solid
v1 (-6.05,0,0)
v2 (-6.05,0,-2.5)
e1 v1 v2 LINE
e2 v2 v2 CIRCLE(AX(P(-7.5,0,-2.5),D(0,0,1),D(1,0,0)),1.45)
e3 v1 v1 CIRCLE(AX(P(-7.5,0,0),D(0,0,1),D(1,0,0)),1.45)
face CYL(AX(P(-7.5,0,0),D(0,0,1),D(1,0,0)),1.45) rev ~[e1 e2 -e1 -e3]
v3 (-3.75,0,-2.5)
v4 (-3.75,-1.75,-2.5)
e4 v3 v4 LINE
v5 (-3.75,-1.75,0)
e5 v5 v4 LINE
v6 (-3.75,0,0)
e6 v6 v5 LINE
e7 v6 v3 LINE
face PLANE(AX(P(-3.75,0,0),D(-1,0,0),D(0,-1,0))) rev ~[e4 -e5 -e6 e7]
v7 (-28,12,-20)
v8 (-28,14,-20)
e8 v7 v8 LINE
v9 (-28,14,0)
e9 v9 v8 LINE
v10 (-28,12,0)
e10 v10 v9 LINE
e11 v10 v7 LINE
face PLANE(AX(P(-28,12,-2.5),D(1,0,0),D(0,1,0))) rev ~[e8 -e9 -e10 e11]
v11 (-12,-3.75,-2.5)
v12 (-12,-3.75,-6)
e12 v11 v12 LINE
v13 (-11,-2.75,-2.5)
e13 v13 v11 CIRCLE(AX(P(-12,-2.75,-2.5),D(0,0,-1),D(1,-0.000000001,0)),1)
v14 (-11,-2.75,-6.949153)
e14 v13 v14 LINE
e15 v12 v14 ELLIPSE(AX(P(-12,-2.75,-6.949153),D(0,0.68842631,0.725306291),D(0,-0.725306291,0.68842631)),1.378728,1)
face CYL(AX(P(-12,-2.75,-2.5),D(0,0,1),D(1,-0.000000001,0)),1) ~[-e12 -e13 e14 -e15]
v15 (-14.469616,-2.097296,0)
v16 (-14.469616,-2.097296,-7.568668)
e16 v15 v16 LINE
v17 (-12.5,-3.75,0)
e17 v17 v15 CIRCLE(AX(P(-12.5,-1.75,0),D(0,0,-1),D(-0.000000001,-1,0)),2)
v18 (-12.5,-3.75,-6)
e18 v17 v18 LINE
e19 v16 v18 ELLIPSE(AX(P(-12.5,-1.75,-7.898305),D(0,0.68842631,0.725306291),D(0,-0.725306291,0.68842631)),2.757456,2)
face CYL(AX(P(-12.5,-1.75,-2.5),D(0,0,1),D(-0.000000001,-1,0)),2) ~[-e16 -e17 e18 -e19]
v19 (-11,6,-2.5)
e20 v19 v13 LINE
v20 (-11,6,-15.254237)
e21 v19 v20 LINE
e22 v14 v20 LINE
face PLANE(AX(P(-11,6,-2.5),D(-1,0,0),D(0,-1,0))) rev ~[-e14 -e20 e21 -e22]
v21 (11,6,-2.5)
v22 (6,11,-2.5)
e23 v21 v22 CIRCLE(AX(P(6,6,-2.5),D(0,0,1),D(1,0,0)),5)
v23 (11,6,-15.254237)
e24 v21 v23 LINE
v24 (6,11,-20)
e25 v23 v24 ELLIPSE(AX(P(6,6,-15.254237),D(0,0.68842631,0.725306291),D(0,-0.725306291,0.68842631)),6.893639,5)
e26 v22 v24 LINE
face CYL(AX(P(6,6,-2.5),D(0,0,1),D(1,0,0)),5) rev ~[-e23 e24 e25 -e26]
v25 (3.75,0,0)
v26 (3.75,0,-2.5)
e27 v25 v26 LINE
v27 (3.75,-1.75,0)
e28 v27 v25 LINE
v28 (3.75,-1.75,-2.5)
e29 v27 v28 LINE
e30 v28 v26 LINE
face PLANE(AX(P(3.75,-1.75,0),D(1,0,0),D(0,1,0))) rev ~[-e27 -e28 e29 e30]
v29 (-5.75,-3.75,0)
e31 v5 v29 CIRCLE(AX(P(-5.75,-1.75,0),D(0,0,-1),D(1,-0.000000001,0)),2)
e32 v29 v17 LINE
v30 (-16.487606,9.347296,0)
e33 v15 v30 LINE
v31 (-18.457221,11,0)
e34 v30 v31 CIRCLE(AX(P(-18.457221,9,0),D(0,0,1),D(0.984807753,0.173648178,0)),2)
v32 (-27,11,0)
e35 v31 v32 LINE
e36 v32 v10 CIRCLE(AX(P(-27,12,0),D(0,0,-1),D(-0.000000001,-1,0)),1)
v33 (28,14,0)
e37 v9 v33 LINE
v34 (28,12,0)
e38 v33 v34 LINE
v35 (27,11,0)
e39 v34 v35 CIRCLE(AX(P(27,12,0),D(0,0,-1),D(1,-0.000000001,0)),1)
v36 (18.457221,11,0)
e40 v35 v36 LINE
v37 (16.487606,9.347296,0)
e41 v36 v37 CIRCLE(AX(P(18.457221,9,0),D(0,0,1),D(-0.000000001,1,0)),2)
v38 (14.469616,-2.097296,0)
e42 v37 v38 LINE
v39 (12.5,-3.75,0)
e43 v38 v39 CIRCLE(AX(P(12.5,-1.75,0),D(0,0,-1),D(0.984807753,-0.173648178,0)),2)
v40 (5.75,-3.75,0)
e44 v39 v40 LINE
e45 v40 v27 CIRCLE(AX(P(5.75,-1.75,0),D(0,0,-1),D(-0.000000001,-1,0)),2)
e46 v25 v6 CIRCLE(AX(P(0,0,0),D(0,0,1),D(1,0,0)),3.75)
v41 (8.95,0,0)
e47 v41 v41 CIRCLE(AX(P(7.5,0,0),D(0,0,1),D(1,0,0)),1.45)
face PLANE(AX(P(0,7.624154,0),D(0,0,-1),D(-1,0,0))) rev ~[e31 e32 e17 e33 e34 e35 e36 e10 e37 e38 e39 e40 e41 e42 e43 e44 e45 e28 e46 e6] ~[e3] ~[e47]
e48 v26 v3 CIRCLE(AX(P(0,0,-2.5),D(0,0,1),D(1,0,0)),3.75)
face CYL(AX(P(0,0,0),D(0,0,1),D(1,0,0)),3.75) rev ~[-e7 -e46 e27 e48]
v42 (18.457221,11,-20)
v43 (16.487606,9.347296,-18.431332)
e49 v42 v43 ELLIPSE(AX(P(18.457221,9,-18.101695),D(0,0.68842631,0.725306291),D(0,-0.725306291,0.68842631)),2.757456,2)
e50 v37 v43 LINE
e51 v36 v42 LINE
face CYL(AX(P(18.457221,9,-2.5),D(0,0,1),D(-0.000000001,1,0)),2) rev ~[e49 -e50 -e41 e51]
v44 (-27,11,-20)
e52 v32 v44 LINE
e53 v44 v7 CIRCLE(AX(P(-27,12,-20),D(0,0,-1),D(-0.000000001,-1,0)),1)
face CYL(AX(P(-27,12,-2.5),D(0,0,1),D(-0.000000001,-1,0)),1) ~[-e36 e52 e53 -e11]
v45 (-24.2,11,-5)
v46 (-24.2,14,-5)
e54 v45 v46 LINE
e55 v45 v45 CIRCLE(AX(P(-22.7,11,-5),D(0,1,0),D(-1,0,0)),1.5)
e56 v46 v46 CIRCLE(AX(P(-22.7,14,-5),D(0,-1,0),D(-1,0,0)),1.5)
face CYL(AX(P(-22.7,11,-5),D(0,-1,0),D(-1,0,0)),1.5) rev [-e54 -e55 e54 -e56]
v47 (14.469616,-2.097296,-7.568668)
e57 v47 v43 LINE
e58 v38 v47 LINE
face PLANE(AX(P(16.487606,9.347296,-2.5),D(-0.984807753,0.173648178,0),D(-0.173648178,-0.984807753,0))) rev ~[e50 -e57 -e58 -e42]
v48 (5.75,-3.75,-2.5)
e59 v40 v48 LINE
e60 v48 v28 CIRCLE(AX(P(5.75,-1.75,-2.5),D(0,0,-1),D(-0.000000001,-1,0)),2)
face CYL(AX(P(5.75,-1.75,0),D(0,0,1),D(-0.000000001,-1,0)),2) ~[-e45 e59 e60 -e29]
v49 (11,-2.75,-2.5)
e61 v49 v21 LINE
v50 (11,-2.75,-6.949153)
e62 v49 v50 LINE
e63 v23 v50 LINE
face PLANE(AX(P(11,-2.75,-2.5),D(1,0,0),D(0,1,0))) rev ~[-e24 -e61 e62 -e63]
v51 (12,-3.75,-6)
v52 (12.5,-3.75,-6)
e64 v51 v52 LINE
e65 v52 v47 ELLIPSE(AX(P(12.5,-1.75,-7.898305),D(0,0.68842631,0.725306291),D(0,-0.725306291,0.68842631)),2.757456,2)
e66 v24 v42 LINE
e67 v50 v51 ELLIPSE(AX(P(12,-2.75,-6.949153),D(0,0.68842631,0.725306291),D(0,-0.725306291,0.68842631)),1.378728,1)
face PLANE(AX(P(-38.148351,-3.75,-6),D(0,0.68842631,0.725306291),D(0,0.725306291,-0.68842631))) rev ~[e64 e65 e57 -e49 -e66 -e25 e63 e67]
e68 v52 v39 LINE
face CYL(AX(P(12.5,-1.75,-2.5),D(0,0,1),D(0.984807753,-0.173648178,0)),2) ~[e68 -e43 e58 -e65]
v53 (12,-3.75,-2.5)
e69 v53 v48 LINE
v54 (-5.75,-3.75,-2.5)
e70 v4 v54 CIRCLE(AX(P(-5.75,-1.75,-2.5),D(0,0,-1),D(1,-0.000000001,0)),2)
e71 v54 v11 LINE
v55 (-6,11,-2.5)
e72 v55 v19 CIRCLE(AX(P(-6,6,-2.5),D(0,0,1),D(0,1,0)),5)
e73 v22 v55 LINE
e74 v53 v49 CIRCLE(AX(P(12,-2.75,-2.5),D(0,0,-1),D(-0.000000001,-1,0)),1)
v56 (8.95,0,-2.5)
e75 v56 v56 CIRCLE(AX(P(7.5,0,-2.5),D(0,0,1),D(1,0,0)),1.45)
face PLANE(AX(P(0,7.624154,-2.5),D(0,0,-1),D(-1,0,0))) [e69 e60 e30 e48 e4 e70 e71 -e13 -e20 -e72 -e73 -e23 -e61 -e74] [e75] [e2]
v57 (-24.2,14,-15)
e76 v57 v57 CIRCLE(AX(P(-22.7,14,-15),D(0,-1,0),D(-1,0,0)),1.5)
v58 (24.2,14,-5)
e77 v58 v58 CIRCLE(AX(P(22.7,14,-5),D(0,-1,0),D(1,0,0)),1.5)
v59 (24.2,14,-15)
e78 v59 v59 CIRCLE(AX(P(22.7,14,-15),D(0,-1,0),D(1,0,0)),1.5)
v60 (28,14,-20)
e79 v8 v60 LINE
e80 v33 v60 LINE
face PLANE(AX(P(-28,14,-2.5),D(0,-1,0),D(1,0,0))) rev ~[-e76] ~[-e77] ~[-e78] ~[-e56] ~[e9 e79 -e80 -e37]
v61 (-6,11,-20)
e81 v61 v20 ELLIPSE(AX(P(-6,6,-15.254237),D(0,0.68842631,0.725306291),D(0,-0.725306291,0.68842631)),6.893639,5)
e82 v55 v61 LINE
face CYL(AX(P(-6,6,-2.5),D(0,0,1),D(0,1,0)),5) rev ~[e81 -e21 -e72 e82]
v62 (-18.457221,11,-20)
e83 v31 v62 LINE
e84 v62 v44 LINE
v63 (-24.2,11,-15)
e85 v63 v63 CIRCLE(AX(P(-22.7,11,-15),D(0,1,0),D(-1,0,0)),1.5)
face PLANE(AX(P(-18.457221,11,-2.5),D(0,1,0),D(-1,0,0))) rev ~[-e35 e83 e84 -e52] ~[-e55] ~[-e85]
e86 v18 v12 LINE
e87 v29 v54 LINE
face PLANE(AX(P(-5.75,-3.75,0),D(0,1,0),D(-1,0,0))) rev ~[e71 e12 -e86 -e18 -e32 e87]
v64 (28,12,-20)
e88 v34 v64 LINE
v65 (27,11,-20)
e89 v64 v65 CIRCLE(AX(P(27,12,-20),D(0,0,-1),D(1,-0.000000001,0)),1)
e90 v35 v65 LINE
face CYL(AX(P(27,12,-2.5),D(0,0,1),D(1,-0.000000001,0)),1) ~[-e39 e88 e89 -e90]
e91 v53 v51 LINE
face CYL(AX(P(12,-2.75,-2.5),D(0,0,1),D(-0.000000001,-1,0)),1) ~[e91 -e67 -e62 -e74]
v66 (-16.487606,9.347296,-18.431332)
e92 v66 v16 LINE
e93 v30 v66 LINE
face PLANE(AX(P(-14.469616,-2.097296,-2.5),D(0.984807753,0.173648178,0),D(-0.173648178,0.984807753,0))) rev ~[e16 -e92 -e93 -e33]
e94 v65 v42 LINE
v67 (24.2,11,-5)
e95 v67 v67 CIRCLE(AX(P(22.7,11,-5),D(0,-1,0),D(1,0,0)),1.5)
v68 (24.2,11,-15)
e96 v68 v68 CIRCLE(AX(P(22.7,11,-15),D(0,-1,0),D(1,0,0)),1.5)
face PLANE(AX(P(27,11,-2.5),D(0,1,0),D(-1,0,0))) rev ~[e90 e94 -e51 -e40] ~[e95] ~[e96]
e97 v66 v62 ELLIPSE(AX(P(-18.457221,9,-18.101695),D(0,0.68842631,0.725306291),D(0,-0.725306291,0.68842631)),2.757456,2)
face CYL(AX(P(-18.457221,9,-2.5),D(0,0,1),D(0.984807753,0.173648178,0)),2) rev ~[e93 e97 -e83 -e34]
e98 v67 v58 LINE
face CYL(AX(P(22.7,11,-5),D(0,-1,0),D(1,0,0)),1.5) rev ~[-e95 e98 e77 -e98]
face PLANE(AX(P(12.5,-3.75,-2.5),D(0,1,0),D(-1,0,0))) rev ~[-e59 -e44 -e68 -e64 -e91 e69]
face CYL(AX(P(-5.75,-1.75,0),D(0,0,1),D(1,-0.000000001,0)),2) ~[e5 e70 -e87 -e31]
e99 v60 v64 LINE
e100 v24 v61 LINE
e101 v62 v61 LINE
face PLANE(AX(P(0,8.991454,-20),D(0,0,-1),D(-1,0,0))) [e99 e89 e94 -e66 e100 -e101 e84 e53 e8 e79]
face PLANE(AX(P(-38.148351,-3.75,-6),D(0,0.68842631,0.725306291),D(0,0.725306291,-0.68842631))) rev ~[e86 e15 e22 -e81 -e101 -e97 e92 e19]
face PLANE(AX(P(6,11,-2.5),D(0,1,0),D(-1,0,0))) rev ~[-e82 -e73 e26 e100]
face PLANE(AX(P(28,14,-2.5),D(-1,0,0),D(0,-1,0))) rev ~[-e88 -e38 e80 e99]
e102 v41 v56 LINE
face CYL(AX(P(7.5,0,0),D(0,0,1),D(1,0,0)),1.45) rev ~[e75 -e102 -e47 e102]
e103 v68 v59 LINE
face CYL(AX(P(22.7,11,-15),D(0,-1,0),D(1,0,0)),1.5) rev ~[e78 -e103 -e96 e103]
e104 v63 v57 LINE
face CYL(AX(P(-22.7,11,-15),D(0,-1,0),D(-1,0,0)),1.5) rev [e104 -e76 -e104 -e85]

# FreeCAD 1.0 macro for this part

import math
import FreeCAD as App
import Part
import Sketcher
from FreeCAD import Vector
Q = App.Units.Quantity

doc = App.newDocument("Part")
params = doc.addObject("Spreadsheet::Sheet", "Params")
for row, (alias, value) in enumerate([
    ("sketch1_radius", "2 mm"),
    ("sketch1_radius2", "1 mm"),
    ("sketch1_diameter", "2.9 mm"),
    ("sketch1_width", "56 mm"),
    ("sketch1_height", "2 mm"),
    ("pad1_length", "2.5 mm"),
    ("sketch2_radius", "5 mm"),
    ("sketch2_radius2", "1 mm"),
    ("sketch2_radius3", "2 mm"),
    ("sketch2_width", "12 mm"),
    ("sketch2_width2", "56 mm"),
    ("pad2_length", "17.5 mm"),
    ("sketch3_height", "14 mm"),
    ("sketch3_width", "14.75 mm"),
    ("sketch4_diameter", "3 mm"),
], start=1):
    params.set(f"A{row}", alias)
    params.set(f"B{row}", "=" + value)
    params.setAlias(f"B{row}", alias)

body = doc.addObject("PartDesign::Body", "Body")

# Sketch on XY plane
sketch1 = doc.addObject("Sketcher::SketchObject", "Sketch")
body.addObject(sketch1)
sketch1.AttachmentSupport = (doc.XY_Plane, [""])
sketch1.MapMode = "FlatFace"
sketch1.addGeometry([
    Part.LineSegment(Vector(-3.75, -1.75, 0), Vector(-3.75, 0, 0)),  # 0
    Part.ArcOfCircle(Part.Circle(Vector(0, 0, 0), Vector(0, 0, 1), 3.75), math.radians(0), math.radians(180)),  # 1
    Part.LineSegment(Vector(3.75, 0, 0), Vector(3.75, -1.75, 0)),  # 2
    Part.ArcOfCircle(Part.Circle(Vector(5.75, -1.75, 0), Vector(0, 0, 1), 2), math.radians(-180), math.radians(-90)),  # 3
    Part.LineSegment(Vector(5.75, -3.75, 0), Vector(12.5, -3.75, 0)),  # 4
    Part.ArcOfCircle(Part.Circle(Vector(12.5, -1.75, 0), Vector(0, 0, 1), 2), math.radians(-90), math.radians(-10)),  # 5
    Part.LineSegment(Vector(14.469616, -2.097296, 0), Vector(16.487606, 9.347296, 0)),  # 6
    Part.ArcOfCircle(Part.Circle(Vector(18.457221, 9, 0), Vector(0, 0, 1), 2), math.radians(90), math.radians(170)),  # 7
    Part.LineSegment(Vector(18.457221, 11, 0), Vector(27, 11, 0)),  # 8
    Part.ArcOfCircle(Part.Circle(Vector(27, 12, 0), Vector(0, 0, 1), 1), math.radians(-90), math.radians(0)),  # 9
    Part.LineSegment(Vector(28, 12, 0), Vector(28, 14, 0)),  # 10
    Part.LineSegment(Vector(28, 14, 0), Vector(-28, 14, 0)),  # 11
    Part.LineSegment(Vector(-28, 14, 0), Vector(-28, 12, 0)),  # 12
    Part.ArcOfCircle(Part.Circle(Vector(-27, 12, 0), Vector(0, 0, 1), 1), math.radians(-180), math.radians(-90)),  # 13
    Part.LineSegment(Vector(-27, 11, 0), Vector(-18.457221, 11, 0)),  # 14
    Part.ArcOfCircle(Part.Circle(Vector(-18.457221, 9, 0), Vector(0, 0, 1), 2), math.radians(10), math.radians(90)),  # 15
    Part.LineSegment(Vector(-16.487606, 9.347296, 0), Vector(-14.469616, -2.097296, 0)),  # 16
    Part.ArcOfCircle(Part.Circle(Vector(-12.5, -1.75, 0), Vector(0, 0, 1), 2), math.radians(-170), math.radians(-90)),  # 17
    Part.LineSegment(Vector(-12.5, -3.75, 0), Vector(-5.75, -3.75, 0)),  # 18
    Part.ArcOfCircle(Part.Circle(Vector(-5.75, -1.75, 0), Vector(0, 0, 1), 2), math.radians(-90), math.radians(0)),  # 19
    Part.Circle(Vector(7.5, 0, 0), Vector(0, 0, 1), 1.45),  # 20
    Part.Circle(Vector(-7.5, 0, 0), Vector(0, 0, 1), 1.45),  # 21
], False)
sketch1.addConstraint([
    Sketcher.Constraint("Tangent", 0, 2, 1, 2),
    Sketcher.Constraint("Tangent", 1, 1, 2, 1),
    Sketcher.Constraint("Tangent", 2, 2, 3, 1),
    Sketcher.Constraint("Tangent", 3, 2, 4, 1),
    Sketcher.Constraint("Tangent", 4, 2, 5, 1),
    Sketcher.Constraint("Tangent", 5, 2, 6, 1),
    Sketcher.Constraint("Tangent", 6, 2, 7, 2),
    Sketcher.Constraint("Tangent", 7, 1, 8, 1),
    Sketcher.Constraint("Tangent", 8, 2, 9, 1),
    Sketcher.Constraint("Tangent", 9, 2, 10, 1),
    Sketcher.Constraint("Coincident", 10, 2, 11, 1),
    Sketcher.Constraint("Coincident", 11, 2, 12, 1),
    Sketcher.Constraint("Tangent", 12, 2, 13, 1),
    Sketcher.Constraint("Tangent", 13, 2, 14, 1),
    Sketcher.Constraint("Tangent", 14, 2, 15, 2),
    Sketcher.Constraint("Tangent", 15, 1, 16, 1),
    Sketcher.Constraint("Tangent", 16, 2, 17, 1),
    Sketcher.Constraint("Tangent", 17, 2, 18, 1),
    Sketcher.Constraint("Tangent", 18, 2, 19, 1),
    Sketcher.Constraint("Tangent", 19, 2, 0, 1),
    Sketcher.Constraint("Vertical", 0),
    Sketcher.Constraint("Vertical", 2),
    Sketcher.Constraint("Horizontal", 4),
    Sketcher.Constraint("Horizontal", 8),
    Sketcher.Constraint("Vertical", 10),
    Sketcher.Constraint("Horizontal", 11),
    Sketcher.Constraint("Vertical", 12),
    Sketcher.Constraint("Horizontal", 14),
    Sketcher.Constraint("Horizontal", 18),
    Sketcher.Constraint("Coincident", 1, 3, -1, 1),
    Sketcher.Constraint("Equal", 3, 5),
    Sketcher.Constraint("Equal", 5, 7),
    Sketcher.Constraint("Equal", 9, 13),
    Sketcher.Constraint("Equal", 7, 15),
    Sketcher.Constraint("Equal", 15, 17),
    Sketcher.Constraint("Equal", 17, 19),
    Sketcher.Constraint("Equal", 20, 21),
    Sketcher.Constraint("Symmetric", 20, 3, 21, 3, -1, 1),
    Sketcher.Constraint("Symmetric", 9, 3, 13, 3, -2),
    Sketcher.Constraint("Symmetric", 5, 3, 17, 3, -2),
    Sketcher.Constraint("PointOnObject", 20, 3, -1),
    Sketcher.Constraint("Horizontal", 6, 2, 15, 1),
    Sketcher.Constraint("Radius", 3, 2.0),
    Sketcher.Constraint("Radius", 9, 1.0),
    Sketcher.Constraint("Diameter", 20, 2.9),
    Sketcher.Constraint("DistanceX", 11, 2, 11, 1, 56.0),
    Sketcher.Constraint("DistanceY", 10, 1, 10, 2, 2.0),
    Sketcher.Constraint("Angle", 6, Q("80 deg")),
    Sketcher.Constraint("Radius", 1, 3.75),
    Sketcher.Constraint("DistanceY", -1, 1, 7, 3, 9.0),
    Sketcher.Constraint("DistanceX", 17, 3, 5, 3, 25.0),
    Sketcher.Constraint("DistanceX", 20, 3, 5, 3, 5.0),
    Sketcher.Constraint("DistanceY", 0, 1, 0, 2, 1.75),
])
sketch1.setExpression("Constraints[42]", "Params.sketch1_radius")
sketch1.setExpression("Constraints[43]", "Params.sketch1_radius2")
sketch1.setExpression("Constraints[44]", "Params.sketch1_diameter")
sketch1.setExpression("Constraints[45]", "Params.sketch1_width")
sketch1.setExpression("Constraints[46]", "Params.sketch1_height")
pad1 = doc.addObject("PartDesign::Pad", "Pad")
body.addObject(pad1)
pad1.Profile = sketch1
pad1.setExpression("Length", "Params.pad1_length")
pad1.Reversed = True

# Sketch on XY plane
sketch2 = doc.addObject("Sketcher::SketchObject", "Sketch001")
body.addObject(sketch2)
sketch2.AttachmentSupport = (doc.XY_Plane, [""])
sketch2.MapMode = "FlatFace"
sketch2.AttachmentOffset = App.Placement(Vector(0, 0, -2.5), App.Rotation())
sketch2.addGeometry([
    Part.LineSegment(Vector(11, -2.75, 0), Vector(11, 6, 0)),  # 0
    Part.ArcOfCircle(Part.Circle(Vector(6, 6, 0), Vector(0, 0, 1), 5), math.radians(0), math.radians(90)),  # 1
    Part.LineSegment(Vector(6, 11, 0), Vector(-6, 11, 0)),  # 2
    Part.ArcOfCircle(Part.Circle(Vector(-6, 6, 0), Vector(0, 0, 1), 5), math.radians(90), math.radians(180)),  # 3
    Part.LineSegment(Vector(-11, 6, 0), Vector(-11, -2.75, 0)),  # 4
    Part.ArcOfCircle(Part.Circle(Vector(-12, -2.75, 0), Vector(0, 0, 1), 1), math.radians(-90), math.radians(0)),  # 5
    Part.LineSegment(Vector(-12, -3.75, 0), Vector(-12.5, -3.75, 0)),  # 6
    Part.ArcOfCircle(Part.Circle(Vector(-12.5, -1.75, 0), Vector(0, 0, 1), 2), math.radians(-170), math.radians(-90)),  # 7
    Part.LineSegment(Vector(-14.469616, -2.097296, 0), Vector(-16.487606, 9.347296, 0)),  # 8
    Part.ArcOfCircle(Part.Circle(Vector(-18.457221, 9, 0), Vector(0, 0, 1), 2), math.radians(10), math.radians(90)),  # 9
    Part.LineSegment(Vector(-18.457221, 11, 0), Vector(-27, 11, 0)),  # 10
    Part.ArcOfCircle(Part.Circle(Vector(-27, 12, 0), Vector(0, 0, 1), 1), math.radians(-180), math.radians(-90)),  # 11
    Part.LineSegment(Vector(-28, 12, 0), Vector(-28, 14, 0)),  # 12
    Part.LineSegment(Vector(-28, 14, 0), Vector(28, 14, 0)),  # 13
    Part.LineSegment(Vector(28, 14, 0), Vector(28, 12, 0)),  # 14
    Part.ArcOfCircle(Part.Circle(Vector(27, 12, 0), Vector(0, 0, 1), 1), math.radians(-90), math.radians(0)),  # 15
    Part.LineSegment(Vector(27, 11, 0), Vector(18.457221, 11, 0)),  # 16
    Part.ArcOfCircle(Part.Circle(Vector(18.457221, 9, 0), Vector(0, 0, 1), 2), math.radians(90), math.radians(170)),  # 17
    Part.LineSegment(Vector(16.487606, 9.347296, 0), Vector(14.469616, -2.097296, 0)),  # 18
    Part.ArcOfCircle(Part.Circle(Vector(12.5, -1.75, 0), Vector(0, 0, 1), 2), math.radians(-90), math.radians(-10)),  # 19
    Part.LineSegment(Vector(12.5, -3.75, 0), Vector(12, -3.75, 0)),  # 20
    Part.ArcOfCircle(Part.Circle(Vector(12, -2.75, 0), Vector(0, 0, 1), 1), math.radians(-180), math.radians(-90)),  # 21
], False)
sketch2.addConstraint([
    Sketcher.Constraint("Tangent", 0, 2, 1, 1),
    Sketcher.Constraint("Tangent", 1, 2, 2, 1),
    Sketcher.Constraint("Tangent", 2, 2, 3, 1),
    Sketcher.Constraint("Tangent", 3, 2, 4, 1),
    Sketcher.Constraint("Tangent", 4, 2, 5, 2),
    Sketcher.Constraint("Tangent", 5, 1, 6, 1),
    Sketcher.Constraint("Tangent", 6, 2, 7, 2),
    Sketcher.Constraint("Tangent", 7, 1, 8, 1),
    Sketcher.Constraint("Tangent", 8, 2, 9, 1),
    Sketcher.Constraint("Tangent", 9, 2, 10, 1),
    Sketcher.Constraint("Tangent", 10, 2, 11, 2),
    Sketcher.Constraint("Tangent", 11, 1, 12, 1),
    Sketcher.Constraint("Coincident", 12, 2, 13, 1),
    Sketcher.Constraint("Coincident", 13, 2, 14, 1),
    Sketcher.Constraint("Tangent", 14, 2, 15, 2),
    Sketcher.Constraint("Tangent", 15, 1, 16, 1),
    Sketcher.Constraint("Tangent", 16, 2, 17, 1),
    Sketcher.Constraint("Tangent", 17, 2, 18, 1),
    Sketcher.Constraint("Tangent", 18, 2, 19, 2),
    Sketcher.Constraint("Tangent", 19, 1, 20, 1),
    Sketcher.Constraint("Tangent", 20, 2, 21, 2),
    Sketcher.Constraint("Tangent", 21, 1, 0, 1),
    Sketcher.Constraint("Vertical", 0),
    Sketcher.Constraint("Horizontal", 2),
    Sketcher.Constraint("Vertical", 4),
    Sketcher.Constraint("Horizontal", 6),
    Sketcher.Constraint("Horizontal", 10),
    Sketcher.Constraint("Vertical", 12),
    Sketcher.Constraint("Horizontal", 13),
    Sketcher.Constraint("Vertical", 14),
    Sketcher.Constraint("Horizontal", 16),
    Sketcher.Constraint("Horizontal", 20),
    Sketcher.Constraint("Equal", 1, 3),
    Sketcher.Constraint("Equal", 7, 9),
    Sketcher.Constraint("Equal", 5, 11),
    Sketcher.Constraint("Equal", 11, 15),
    Sketcher.Constraint("Equal", 9, 17),
    Sketcher.Constraint("Equal", 17, 19),
    Sketcher.Constraint("Equal", 15, 21),
    Sketcher.Constraint("Symmetric", 11, 3, 15, 3, -2),
    Sketcher.Constraint("Symmetric", 7, 3, 19, 3, -2),
    Sketcher.Constraint("Horizontal", 2, 2, 9, 2),
    Sketcher.Constraint("Horizontal", 8, 2, 17, 2),
    Sketcher.Constraint("Equal", 6, 20),
    Sketcher.Constraint("Radius", 1, 5.0),
    Sketcher.Constraint("Radius", 5, 1.0),
    Sketcher.Constraint("Radius", 7, 2.0),
    Sketcher.Constraint("DistanceX", 2, 2, 2, 1, 12.0),
    Sketcher.Constraint("DistanceX", 13, 1, 13, 2, 56.0),
    Sketcher.Constraint("DistanceY", 12, 1, 12, 2, 2.0),
    Sketcher.Constraint("Angle", 8, Q("100 deg")),
    Sketcher.Constraint("DistanceX", 6, 2, 6, 1, 0.5),
    Sketcher.Constraint("DistanceY", -1, 1, 1, 3, 6.0),
    Sketcher.Constraint("DistanceY", 0, 1, 0, 2, 8.75),
])
sketch2.setExpression("Constraints[44]", "Params.sketch2_radius")
sketch2.setExpression("Constraints[45]", "Params.sketch2_radius2")
sketch2.setExpression("Constraints[46]", "Params.sketch2_radius3")
sketch2.setExpression("Constraints[47]", "Params.sketch2_width")
sketch2.setExpression("Constraints[48]", "Params.sketch2_width2")
pad2 = doc.addObject("PartDesign::Pad", "Pad001")
body.addObject(pad2)
pad2.Profile = sketch2
pad2.setExpression("Length", "Params.pad2_length")
pad2.Reversed = True

# Sketch on YZ plane
sketch3 = doc.addObject("Sketcher::SketchObject", "Sketch002")
body.addObject(sketch3)
sketch3.AttachmentSupport = (doc.YZ_Plane, [""])
sketch3.MapMode = "FlatFace"
sketch3.addGeometry([
    Part.LineSegment(Vector(11, -20, 0), Vector(-3.75, -6, 0)),
    Part.LineSegment(Vector(-3.75, -6, 0), Vector(-3.75, -20, 0)),
    Part.LineSegment(Vector(-3.75, -20, 0), Vector(11, -20, 0)),
], False)
sketch3.addConstraint([
    Sketcher.Constraint("Coincident", 0, 2, 1, 1),
    Sketcher.Constraint("Coincident", 1, 2, 2, 1),
    Sketcher.Constraint("Coincident", 2, 2, 0, 1),
    Sketcher.Constraint("Vertical", 1),
    Sketcher.Constraint("Horizontal", 2),
    Sketcher.Constraint("DistanceY", 1, 2, 1, 1, 14.0),
    Sketcher.Constraint("DistanceY", 0, 2, -1, 1, 6.0),
    Sketcher.Constraint("DistanceX", -1, 1, 2, 2, 11.0),
    Sketcher.Constraint("DistanceX", 2, 1, 2, 2, 14.75),
])
sketch3.setExpression("Constraints[5]", "Params.sketch3_height")
sketch3.setExpression("Constraints[8]", "Params.sketch3_width")
pocket1 = doc.addObject("PartDesign::Pocket", "Pocket")
body.addObject(pocket1)
pocket1.Profile = sketch3
pocket1.Type = "ThroughAll"
pocket1.Midplane = True

# Sketch on XZ plane
sketch4 = doc.addObject("Sketcher::SketchObject", "Sketch003")
body.addObject(sketch4)
sketch4.AttachmentSupport = (doc.XZ_Plane, [""])
sketch4.MapMode = "FlatFace"
sketch4.AttachmentOffset = App.Placement(Vector(0, 0, -11), App.Rotation())
sketch4.addGeometry([
    Part.Circle(Vector(22.7, -15, 0), Vector(0, 0, 1), 1.5),
    Part.Circle(Vector(22.7, -5, 0), Vector(0, 0, 1), 1.5),
], False)
sketch4.addConstraint([
    Sketcher.Constraint("Equal", 0, 1),
    Sketcher.Constraint("Vertical", 0, 3, 1, 3),
    Sketcher.Constraint("Diameter", 0, 3.0),
    Sketcher.Constraint("DistanceY", 0, 3, -1, 1, 15.0),
    Sketcher.Constraint("DistanceY", 1, 3, -1, 1, 5.0),
    Sketcher.Constraint("DistanceX", -1, 1, 0, 3, 22.7),
])
sketch4.setExpression("Constraints[2]", "Params.sketch4_diameter")
pocket2 = doc.addObject("PartDesign::Pocket", "Pocket001")
body.addObject(pocket2)
pocket2.Profile = sketch4
pocket2.Type = "ThroughAll"
doc.recompute()

mirrored = doc.addObject("PartDesign::Mirrored", "Mirrored")
body.addObject(mirrored)
mirrored.Originals = [pocket2]
mirrored.MirrorPlane = (doc.YZ_Plane, [""])
body.Tip = mirrored

doc.recompute()
